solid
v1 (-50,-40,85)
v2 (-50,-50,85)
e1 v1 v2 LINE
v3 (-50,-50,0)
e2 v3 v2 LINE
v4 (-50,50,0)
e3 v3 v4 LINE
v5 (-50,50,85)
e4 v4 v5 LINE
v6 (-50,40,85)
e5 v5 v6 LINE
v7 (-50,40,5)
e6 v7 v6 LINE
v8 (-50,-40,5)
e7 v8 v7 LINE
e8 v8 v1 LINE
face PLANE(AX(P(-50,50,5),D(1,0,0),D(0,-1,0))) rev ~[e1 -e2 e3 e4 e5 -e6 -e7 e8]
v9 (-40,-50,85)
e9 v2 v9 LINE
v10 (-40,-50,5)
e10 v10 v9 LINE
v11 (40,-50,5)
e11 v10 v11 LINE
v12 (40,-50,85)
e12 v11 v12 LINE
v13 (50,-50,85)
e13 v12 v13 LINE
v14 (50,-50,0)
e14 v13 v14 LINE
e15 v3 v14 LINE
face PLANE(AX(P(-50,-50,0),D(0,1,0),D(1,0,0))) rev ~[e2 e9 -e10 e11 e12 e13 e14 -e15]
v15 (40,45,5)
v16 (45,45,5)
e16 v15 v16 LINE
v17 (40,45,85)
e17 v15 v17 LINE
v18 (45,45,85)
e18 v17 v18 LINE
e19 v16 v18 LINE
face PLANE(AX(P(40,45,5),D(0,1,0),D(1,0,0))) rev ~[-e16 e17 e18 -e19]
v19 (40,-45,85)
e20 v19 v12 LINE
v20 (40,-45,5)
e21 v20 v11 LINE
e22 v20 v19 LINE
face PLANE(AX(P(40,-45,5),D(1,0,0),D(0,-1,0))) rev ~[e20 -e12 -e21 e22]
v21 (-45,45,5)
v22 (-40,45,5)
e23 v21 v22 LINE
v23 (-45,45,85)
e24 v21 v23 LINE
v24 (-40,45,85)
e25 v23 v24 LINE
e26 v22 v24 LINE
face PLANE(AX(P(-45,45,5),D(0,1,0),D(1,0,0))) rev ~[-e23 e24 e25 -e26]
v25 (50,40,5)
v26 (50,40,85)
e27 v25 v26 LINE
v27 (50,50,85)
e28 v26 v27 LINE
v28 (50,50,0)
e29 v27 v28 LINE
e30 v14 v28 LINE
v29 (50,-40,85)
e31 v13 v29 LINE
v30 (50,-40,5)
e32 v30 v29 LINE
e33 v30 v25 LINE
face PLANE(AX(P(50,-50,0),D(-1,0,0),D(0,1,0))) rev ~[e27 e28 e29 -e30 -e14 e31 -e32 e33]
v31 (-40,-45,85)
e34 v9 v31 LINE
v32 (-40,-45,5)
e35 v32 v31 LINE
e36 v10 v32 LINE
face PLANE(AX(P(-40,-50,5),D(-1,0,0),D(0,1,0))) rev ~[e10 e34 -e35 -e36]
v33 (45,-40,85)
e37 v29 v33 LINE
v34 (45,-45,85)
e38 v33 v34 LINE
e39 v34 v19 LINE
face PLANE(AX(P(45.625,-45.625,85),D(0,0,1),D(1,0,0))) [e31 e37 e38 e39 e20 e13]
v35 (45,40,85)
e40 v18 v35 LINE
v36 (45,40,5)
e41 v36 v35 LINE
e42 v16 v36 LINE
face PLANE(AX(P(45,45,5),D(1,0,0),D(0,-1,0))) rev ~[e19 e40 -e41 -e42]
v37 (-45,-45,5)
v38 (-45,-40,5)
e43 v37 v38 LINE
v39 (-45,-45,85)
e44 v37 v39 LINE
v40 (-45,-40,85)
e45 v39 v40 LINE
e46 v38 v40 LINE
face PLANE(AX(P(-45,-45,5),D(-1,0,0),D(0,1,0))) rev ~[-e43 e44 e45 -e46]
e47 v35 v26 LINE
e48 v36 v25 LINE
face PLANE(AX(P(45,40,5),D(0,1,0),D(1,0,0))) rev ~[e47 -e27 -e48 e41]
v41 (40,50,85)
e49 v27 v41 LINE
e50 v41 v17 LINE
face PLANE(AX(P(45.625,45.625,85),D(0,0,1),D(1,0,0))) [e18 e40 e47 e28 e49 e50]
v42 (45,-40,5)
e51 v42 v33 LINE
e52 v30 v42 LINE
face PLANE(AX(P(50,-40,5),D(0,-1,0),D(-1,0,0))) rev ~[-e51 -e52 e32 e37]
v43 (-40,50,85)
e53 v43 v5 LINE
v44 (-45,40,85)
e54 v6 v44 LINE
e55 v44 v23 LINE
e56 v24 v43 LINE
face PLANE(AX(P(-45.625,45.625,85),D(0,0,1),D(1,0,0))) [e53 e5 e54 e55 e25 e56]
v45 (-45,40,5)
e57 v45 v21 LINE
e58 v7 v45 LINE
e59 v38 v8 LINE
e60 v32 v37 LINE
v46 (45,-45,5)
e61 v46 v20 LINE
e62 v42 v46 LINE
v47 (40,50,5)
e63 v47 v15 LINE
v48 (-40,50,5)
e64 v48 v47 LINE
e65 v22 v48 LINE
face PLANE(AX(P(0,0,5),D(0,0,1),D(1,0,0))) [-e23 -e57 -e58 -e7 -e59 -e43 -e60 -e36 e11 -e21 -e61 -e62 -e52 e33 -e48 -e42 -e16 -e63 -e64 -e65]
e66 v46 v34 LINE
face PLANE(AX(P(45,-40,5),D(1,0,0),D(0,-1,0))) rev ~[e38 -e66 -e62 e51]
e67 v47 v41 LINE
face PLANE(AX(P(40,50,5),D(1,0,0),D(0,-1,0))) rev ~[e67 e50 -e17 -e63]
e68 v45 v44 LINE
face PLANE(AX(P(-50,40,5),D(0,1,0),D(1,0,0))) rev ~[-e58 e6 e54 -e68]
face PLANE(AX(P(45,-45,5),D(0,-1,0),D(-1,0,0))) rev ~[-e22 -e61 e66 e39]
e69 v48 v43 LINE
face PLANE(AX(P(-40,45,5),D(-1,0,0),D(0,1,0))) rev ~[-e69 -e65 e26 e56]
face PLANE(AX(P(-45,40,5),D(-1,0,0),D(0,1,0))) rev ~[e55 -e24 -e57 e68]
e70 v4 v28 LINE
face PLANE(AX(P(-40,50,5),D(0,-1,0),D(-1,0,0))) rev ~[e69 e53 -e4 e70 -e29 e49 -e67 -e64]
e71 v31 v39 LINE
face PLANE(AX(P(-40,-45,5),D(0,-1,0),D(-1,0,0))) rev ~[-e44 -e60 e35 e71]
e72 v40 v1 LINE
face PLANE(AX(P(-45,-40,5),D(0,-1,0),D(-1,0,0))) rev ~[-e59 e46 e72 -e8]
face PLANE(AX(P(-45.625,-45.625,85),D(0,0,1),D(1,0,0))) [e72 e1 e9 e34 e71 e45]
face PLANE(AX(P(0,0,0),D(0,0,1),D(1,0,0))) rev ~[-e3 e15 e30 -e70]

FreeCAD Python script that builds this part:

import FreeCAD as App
import Part
import Sketcher

V = App.Vector


def add_polygon(sketch, points):
    """Adds a closed chain of lines whose ends are joined by coincident constraints."""
    first, n = sketch.GeometryCount, len(points)
    for a, b in zip(points, points[1:] + points[:1]):
        sketch.addGeometry(Part.LineSegment(App.Vector(*a, 0), App.Vector(*b, 0)), False)
    for i in range(n):
        sketch.addConstraint(Sketcher.Constraint("Coincident", first + i, 2, first + (i + 1) % n, 1))

doc = App.newDocument("Part")
params = doc.addObject("Spreadsheet::Sheet", "Params")
for row, (alias, value) in enumerate([
    ("sketch1_width", "100 mm"),
    ("pad1_length", "5 mm"),
    ("sketch2_width", "10 mm"),
    ("pad2_length", "80 mm"),
], start=1):
    params.set(f"A{row}", alias)
    params.set(f"B{row}", "=" + value)
    params.setAlias(f"B{row}", alias)

body = doc.addObject("PartDesign::Body", "Body")

sketch1 = doc.addObject("Sketcher::SketchObject", "Sketch")
body.addObject(sketch1)
sketch1.AttachmentSupport = (doc.XY_Plane, [""])
sketch1.MapMode = "FlatFace"
add_polygon(sketch1, [(-50, 50), (-50, -50), (50, -50), (50, 50)])
sketch1.addConstraint(Sketcher.Constraint("Vertical", 0))
sketch1.addConstraint(Sketcher.Constraint("Horizontal", 1))
sketch1.addConstraint(Sketcher.Constraint("Vertical", 2))
sketch1.addConstraint(Sketcher.Constraint("Horizontal", 3))
sketch1.addConstraint(Sketcher.Constraint("Symmetric", 0, 2, 2, 2, -1, 1))
sketch1.addConstraint(Sketcher.Constraint("Equal", 3, 0))
sketch1.addConstraint(Sketcher.Constraint("DistanceX", 1, 1, 1, 2, 100.0))
sketch1.setExpression("Constraints[10]", "Params.sketch1_width")
pad1 = doc.addObject("PartDesign::Pad", "Pad")
body.addObject(pad1)
pad1.Profile = sketch1
pad1.setExpression("Length", "Params.pad1_length")

sketch2 = doc.addObject("Sketcher::SketchObject", "Sketch001")
body.addObject(sketch2)
sketch2.AttachmentSupport = (doc.XY_Plane, [""])
sketch2.MapMode = "FlatFace"
sketch2.AttachmentOffset = App.Placement(V(0, 0, 5), App.Rotation())
add_polygon(sketch2, [(-40, 45), (-40, 50), (-50, 50), (-50, 40), (-45, 40), (-45, 45)])
add_polygon(sketch2, [(40, 45), (45, 45), (45, 40), (50, 40), (50, 50), (40, 50)])
add_polygon(sketch2, [(-40, -45), (-45, -45), (-45, -40), (-50, -40), (-50, -50), (-40, -50)])
add_polygon(sketch2, [(50, -40), (45, -40), (45, -45), (40, -45), (40, -50), (50, -50)])
sketch2.addConstraint(Sketcher.Constraint("Vertical", 0))
sketch2.addConstraint(Sketcher.Constraint("Horizontal", 1))
sketch2.addConstraint(Sketcher.Constraint("Vertical", 2))
sketch2.addConstraint(Sketcher.Constraint("Horizontal", 3))
sketch2.addConstraint(Sketcher.Constraint("Vertical", 4))
sketch2.addConstraint(Sketcher.Constraint("Horizontal", 5))
sketch2.addConstraint(Sketcher.Constraint("Horizontal", 6))
sketch2.addConstraint(Sketcher.Constraint("Vertical", 7))
sketch2.addConstraint(Sketcher.Constraint("Horizontal", 8))
sketch2.addConstraint(Sketcher.Constraint("Vertical", 9))
sketch2.addConstraint(Sketcher.Constraint("Horizontal", 10))
sketch2.addConstraint(Sketcher.Constraint("Vertical", 11))
sketch2.addConstraint(Sketcher.Constraint("Horizontal", 12))
sketch2.addConstraint(Sketcher.Constraint("Vertical", 13))
sketch2.addConstraint(Sketcher.Constraint("Horizontal", 14))
sketch2.addConstraint(Sketcher.Constraint("Vertical", 15))
sketch2.addConstraint(Sketcher.Constraint("Horizontal", 16))
sketch2.addConstraint(Sketcher.Constraint("Vertical", 17))
sketch2.addConstraint(Sketcher.Constraint("Horizontal", 18))
sketch2.addConstraint(Sketcher.Constraint("Vertical", 19))
sketch2.addConstraint(Sketcher.Constraint("Horizontal", 20))
sketch2.addConstraint(Sketcher.Constraint("Vertical", 21))
sketch2.addConstraint(Sketcher.Constraint("Horizontal", 22))
sketch2.addConstraint(Sketcher.Constraint("Vertical", 23))
sketch2.addConstraint(Sketcher.Constraint("Symmetric", 6, 2, 12, 2, -1, 1))
sketch2.addConstraint(Sketcher.Constraint("Symmetric", 8, 2, 14, 2, -1, 1))
sketch2.addConstraint(Sketcher.Constraint("Symmetric", 10, 2, 16, 2, -1, 1))
sketch2.addConstraint(Sketcher.Constraint("Symmetric", 3, 2, 18, 2, -1, 1))
sketch2.addConstraint(Sketcher.Constraint("Symmetric", 5, 2, 20, 2, -1, 1))
sketch2.addConstraint(Sketcher.Constraint("Symmetric", 1, 2, 22, 2, -1, 1))
sketch2.addConstraint(Sketcher.Constraint("Symmetric", 4, 2, 6, 2, -2))
sketch2.addConstraint(Sketcher.Constraint("Symmetric", 2, 2, 8, 2, -2))
sketch2.addConstraint(Sketcher.Constraint("Symmetric", 0, 2, 10, 2, -2))
sketch2.addConstraint(Sketcher.Constraint("Equal", 3, 5))
sketch2.addConstraint(Sketcher.Constraint("Equal", 20, 0))
sketch2.addConstraint(Sketcher.Constraint("Equal", 22, 2))
sketch2.addConstraint(Sketcher.Constraint("DistanceX", 1, 2, 1, 1, 10.0))
sketch2.addConstraint(Sketcher.Constraint("DistanceX", 0, 2, -1, 1, 40.0))
sketch2.addConstraint(Sketcher.Constraint("DistanceY", -1, 1, 0, 2, 50.0))
sketch2.setExpression("Constraints[60]", "Params.sketch2_width")
pad2 = doc.addObject("PartDesign::Pad", "Pad001")
body.addObject(pad2)
pad2.Profile = sketch2
pad2.setExpression("Length", "Params.pad2_length")

doc.recompute()
